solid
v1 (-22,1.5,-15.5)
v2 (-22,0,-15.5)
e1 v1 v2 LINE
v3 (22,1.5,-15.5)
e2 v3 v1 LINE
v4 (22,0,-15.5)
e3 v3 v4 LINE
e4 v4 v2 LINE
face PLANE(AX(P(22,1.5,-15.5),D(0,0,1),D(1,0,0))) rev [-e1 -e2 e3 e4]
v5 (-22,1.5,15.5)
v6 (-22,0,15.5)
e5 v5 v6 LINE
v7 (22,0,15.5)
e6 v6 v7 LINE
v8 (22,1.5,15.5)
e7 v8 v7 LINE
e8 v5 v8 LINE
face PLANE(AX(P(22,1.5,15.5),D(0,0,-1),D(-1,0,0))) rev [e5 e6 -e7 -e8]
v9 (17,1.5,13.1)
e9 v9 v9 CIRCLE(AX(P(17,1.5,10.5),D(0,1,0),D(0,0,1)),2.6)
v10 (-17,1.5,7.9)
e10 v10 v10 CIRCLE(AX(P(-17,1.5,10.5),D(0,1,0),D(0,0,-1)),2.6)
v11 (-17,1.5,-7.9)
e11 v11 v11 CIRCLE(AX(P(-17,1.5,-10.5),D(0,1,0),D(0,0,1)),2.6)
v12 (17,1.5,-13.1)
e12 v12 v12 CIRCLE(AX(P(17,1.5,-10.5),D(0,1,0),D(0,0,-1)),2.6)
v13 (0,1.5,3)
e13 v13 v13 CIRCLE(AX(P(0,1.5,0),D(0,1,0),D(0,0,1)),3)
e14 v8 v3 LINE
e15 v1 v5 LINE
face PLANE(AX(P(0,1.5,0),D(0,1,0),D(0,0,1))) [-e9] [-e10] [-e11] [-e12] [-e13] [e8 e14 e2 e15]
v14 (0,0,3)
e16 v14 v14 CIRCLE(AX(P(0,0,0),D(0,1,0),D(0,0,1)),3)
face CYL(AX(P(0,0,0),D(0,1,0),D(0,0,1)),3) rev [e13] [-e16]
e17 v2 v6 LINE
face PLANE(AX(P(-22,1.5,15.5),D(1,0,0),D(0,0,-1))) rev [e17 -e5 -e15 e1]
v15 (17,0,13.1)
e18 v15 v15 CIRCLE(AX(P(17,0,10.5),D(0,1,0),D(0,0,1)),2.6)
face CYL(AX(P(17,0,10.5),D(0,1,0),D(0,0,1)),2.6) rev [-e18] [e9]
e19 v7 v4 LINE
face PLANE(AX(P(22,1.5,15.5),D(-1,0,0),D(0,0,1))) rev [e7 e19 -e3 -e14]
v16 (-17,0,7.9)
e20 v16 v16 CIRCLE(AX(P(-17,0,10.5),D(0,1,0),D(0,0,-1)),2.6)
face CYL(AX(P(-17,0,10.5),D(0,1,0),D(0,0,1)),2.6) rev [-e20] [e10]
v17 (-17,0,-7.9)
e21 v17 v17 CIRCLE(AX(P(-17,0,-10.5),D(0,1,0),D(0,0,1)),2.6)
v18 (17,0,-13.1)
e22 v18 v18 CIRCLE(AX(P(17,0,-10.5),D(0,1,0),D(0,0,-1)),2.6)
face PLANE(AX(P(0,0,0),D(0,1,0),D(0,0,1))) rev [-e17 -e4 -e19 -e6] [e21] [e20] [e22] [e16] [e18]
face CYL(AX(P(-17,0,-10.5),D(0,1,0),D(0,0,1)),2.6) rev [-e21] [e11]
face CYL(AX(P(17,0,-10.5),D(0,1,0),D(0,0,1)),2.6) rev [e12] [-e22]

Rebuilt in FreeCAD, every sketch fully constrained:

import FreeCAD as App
import Part
import Sketcher
from FreeCAD import Vector
Q = App.Units.Quantity


def add_polygon(sketch, points):
    """Adds a closed chain of lines whose ends are joined by coincident constraints."""
    first, n = sketch.GeometryCount, len(points)
    for a, b in zip(points, points[1:] + points[:1]):
        sketch.addGeometry(Part.LineSegment(App.Vector(*a, 0), App.Vector(*b, 0)), False)
    for i in range(n):
        sketch.addConstraint(Sketcher.Constraint("Coincident", first + i, 2, first + (i + 1) % n, 1))

doc = App.newDocument("Part")
params = doc.addObject("Spreadsheet::Sheet", "Params")
for row, (alias, value) in enumerate([
    ("sketch1_width", "44 mm"),
    ("sketch1_height", "31 mm"),
    ("pad1_length", "1.5 mm"),
    ("sketch2_diameter", "6 mm"),
    ("sketch2_diameter2", "5.2 mm"),
    ("pocket1_length", "1.5 mm"),
], start=1):
    params.set(f"A{row}", alias)
    params.set(f"B{row}", "=" + value)
    params.setAlias(f"B{row}", alias)

body = doc.addObject("PartDesign::Body", "Body")

sketch1 = doc.addObject("Sketcher::SketchObject", "Sketch")
body.addObject(sketch1)
sketch1.AttachmentSupport = (doc.XZ_Plane, [""])
sketch1.MapMode = "FlatFace"
add_polygon(sketch1, [(-22, -15.5), (-22, 15.5), (22, 15.5), (22, -15.5)])
sketch1.addConstraint([
    Sketcher.Constraint("Vertical", 0),
    Sketcher.Constraint("Horizontal", 1),
    Sketcher.Constraint("Vertical", 2),
    Sketcher.Constraint("Horizontal", 3),
    Sketcher.Constraint("Symmetric", 0, 2, 2, 2, -1, 1),
    Sketcher.Constraint("DistanceX", 1, 1, 1, 2, Q("44 mm")),
    Sketcher.Constraint("DistanceY", 0, 1, 0, 2, Q("31 mm")),
])
sketch1.setExpression("Constraints[9]", "Params.sketch1_width")
sketch1.setExpression("Constraints[10]", "Params.sketch1_height")
pad1 = doc.addObject("PartDesign::Pad", "Pad")
body.addObject(pad1)
pad1.Profile = sketch1
pad1.setExpression("Length", "Params.pad1_length")
pad1.Reversed = True

sketch2 = doc.addObject("Sketcher::SketchObject", "Sketch001")
body.addObject(sketch2)
sketch2.AttachmentSupport = (doc.XZ_Plane, [""])
sketch2.MapMode = "FlatFace"
sketch2.AttachmentOffset = App.Placement(Vector(0, 0, -1.5), App.Rotation())
sketch2.addGeometry([
    Part.Circle(Vector(-17, -10.5, 0), Vector(0, 0, 1), 2.6),
    Part.Circle(Vector(17, -10.5, 0), Vector(0, 0, 1), 2.6),
    Part.Circle(Vector(17, 10.5, 0), Vector(0, 0, 1), 2.6),
    Part.Circle(Vector(-17, 10.5, 0), Vector(0, 0, 1), 2.6),
    Part.Circle(Vector(0, 0, 0), Vector(0, 0, 1), 3),
], False)
sketch2.addConstraint([
    Sketcher.Constraint("Coincident", 4, 3, -1, 1),
    Sketcher.Constraint("Equal", 0, 1),
    Sketcher.Constraint("Equal", 1, 2),
    Sketcher.Constraint("Equal", 2, 3),
    Sketcher.Constraint("Symmetric", 0, 3, 2, 3, -1, 1),
    Sketcher.Constraint("Symmetric", 1, 3, 3, 3, -1, 1),
    Sketcher.Constraint("Symmetric", 0, 3, 1, 3, -2),
    Sketcher.Constraint("Diameter", 4, Q("6 mm")),
    Sketcher.Constraint("Diameter", 0, Q("5.2 mm")),
    Sketcher.Constraint("DistanceX", 0, 3, -1, 1, Q("17 mm")),
    Sketcher.Constraint("DistanceY", 1, 3, 2, 3, Q("21 mm")),
])
sketch2.setExpression("Constraints[7]", "Params.sketch2_diameter")
sketch2.setExpression("Constraints[8]", "Params.sketch2_diameter2")
pocket1 = doc.addObject("PartDesign::Pocket", "Pocket")
body.addObject(pocket1)
pocket1.Profile = sketch2
pocket1.setExpression("Length", "Params.pocket1_length")
pocket1.Reversed = True

doc.recompute()
